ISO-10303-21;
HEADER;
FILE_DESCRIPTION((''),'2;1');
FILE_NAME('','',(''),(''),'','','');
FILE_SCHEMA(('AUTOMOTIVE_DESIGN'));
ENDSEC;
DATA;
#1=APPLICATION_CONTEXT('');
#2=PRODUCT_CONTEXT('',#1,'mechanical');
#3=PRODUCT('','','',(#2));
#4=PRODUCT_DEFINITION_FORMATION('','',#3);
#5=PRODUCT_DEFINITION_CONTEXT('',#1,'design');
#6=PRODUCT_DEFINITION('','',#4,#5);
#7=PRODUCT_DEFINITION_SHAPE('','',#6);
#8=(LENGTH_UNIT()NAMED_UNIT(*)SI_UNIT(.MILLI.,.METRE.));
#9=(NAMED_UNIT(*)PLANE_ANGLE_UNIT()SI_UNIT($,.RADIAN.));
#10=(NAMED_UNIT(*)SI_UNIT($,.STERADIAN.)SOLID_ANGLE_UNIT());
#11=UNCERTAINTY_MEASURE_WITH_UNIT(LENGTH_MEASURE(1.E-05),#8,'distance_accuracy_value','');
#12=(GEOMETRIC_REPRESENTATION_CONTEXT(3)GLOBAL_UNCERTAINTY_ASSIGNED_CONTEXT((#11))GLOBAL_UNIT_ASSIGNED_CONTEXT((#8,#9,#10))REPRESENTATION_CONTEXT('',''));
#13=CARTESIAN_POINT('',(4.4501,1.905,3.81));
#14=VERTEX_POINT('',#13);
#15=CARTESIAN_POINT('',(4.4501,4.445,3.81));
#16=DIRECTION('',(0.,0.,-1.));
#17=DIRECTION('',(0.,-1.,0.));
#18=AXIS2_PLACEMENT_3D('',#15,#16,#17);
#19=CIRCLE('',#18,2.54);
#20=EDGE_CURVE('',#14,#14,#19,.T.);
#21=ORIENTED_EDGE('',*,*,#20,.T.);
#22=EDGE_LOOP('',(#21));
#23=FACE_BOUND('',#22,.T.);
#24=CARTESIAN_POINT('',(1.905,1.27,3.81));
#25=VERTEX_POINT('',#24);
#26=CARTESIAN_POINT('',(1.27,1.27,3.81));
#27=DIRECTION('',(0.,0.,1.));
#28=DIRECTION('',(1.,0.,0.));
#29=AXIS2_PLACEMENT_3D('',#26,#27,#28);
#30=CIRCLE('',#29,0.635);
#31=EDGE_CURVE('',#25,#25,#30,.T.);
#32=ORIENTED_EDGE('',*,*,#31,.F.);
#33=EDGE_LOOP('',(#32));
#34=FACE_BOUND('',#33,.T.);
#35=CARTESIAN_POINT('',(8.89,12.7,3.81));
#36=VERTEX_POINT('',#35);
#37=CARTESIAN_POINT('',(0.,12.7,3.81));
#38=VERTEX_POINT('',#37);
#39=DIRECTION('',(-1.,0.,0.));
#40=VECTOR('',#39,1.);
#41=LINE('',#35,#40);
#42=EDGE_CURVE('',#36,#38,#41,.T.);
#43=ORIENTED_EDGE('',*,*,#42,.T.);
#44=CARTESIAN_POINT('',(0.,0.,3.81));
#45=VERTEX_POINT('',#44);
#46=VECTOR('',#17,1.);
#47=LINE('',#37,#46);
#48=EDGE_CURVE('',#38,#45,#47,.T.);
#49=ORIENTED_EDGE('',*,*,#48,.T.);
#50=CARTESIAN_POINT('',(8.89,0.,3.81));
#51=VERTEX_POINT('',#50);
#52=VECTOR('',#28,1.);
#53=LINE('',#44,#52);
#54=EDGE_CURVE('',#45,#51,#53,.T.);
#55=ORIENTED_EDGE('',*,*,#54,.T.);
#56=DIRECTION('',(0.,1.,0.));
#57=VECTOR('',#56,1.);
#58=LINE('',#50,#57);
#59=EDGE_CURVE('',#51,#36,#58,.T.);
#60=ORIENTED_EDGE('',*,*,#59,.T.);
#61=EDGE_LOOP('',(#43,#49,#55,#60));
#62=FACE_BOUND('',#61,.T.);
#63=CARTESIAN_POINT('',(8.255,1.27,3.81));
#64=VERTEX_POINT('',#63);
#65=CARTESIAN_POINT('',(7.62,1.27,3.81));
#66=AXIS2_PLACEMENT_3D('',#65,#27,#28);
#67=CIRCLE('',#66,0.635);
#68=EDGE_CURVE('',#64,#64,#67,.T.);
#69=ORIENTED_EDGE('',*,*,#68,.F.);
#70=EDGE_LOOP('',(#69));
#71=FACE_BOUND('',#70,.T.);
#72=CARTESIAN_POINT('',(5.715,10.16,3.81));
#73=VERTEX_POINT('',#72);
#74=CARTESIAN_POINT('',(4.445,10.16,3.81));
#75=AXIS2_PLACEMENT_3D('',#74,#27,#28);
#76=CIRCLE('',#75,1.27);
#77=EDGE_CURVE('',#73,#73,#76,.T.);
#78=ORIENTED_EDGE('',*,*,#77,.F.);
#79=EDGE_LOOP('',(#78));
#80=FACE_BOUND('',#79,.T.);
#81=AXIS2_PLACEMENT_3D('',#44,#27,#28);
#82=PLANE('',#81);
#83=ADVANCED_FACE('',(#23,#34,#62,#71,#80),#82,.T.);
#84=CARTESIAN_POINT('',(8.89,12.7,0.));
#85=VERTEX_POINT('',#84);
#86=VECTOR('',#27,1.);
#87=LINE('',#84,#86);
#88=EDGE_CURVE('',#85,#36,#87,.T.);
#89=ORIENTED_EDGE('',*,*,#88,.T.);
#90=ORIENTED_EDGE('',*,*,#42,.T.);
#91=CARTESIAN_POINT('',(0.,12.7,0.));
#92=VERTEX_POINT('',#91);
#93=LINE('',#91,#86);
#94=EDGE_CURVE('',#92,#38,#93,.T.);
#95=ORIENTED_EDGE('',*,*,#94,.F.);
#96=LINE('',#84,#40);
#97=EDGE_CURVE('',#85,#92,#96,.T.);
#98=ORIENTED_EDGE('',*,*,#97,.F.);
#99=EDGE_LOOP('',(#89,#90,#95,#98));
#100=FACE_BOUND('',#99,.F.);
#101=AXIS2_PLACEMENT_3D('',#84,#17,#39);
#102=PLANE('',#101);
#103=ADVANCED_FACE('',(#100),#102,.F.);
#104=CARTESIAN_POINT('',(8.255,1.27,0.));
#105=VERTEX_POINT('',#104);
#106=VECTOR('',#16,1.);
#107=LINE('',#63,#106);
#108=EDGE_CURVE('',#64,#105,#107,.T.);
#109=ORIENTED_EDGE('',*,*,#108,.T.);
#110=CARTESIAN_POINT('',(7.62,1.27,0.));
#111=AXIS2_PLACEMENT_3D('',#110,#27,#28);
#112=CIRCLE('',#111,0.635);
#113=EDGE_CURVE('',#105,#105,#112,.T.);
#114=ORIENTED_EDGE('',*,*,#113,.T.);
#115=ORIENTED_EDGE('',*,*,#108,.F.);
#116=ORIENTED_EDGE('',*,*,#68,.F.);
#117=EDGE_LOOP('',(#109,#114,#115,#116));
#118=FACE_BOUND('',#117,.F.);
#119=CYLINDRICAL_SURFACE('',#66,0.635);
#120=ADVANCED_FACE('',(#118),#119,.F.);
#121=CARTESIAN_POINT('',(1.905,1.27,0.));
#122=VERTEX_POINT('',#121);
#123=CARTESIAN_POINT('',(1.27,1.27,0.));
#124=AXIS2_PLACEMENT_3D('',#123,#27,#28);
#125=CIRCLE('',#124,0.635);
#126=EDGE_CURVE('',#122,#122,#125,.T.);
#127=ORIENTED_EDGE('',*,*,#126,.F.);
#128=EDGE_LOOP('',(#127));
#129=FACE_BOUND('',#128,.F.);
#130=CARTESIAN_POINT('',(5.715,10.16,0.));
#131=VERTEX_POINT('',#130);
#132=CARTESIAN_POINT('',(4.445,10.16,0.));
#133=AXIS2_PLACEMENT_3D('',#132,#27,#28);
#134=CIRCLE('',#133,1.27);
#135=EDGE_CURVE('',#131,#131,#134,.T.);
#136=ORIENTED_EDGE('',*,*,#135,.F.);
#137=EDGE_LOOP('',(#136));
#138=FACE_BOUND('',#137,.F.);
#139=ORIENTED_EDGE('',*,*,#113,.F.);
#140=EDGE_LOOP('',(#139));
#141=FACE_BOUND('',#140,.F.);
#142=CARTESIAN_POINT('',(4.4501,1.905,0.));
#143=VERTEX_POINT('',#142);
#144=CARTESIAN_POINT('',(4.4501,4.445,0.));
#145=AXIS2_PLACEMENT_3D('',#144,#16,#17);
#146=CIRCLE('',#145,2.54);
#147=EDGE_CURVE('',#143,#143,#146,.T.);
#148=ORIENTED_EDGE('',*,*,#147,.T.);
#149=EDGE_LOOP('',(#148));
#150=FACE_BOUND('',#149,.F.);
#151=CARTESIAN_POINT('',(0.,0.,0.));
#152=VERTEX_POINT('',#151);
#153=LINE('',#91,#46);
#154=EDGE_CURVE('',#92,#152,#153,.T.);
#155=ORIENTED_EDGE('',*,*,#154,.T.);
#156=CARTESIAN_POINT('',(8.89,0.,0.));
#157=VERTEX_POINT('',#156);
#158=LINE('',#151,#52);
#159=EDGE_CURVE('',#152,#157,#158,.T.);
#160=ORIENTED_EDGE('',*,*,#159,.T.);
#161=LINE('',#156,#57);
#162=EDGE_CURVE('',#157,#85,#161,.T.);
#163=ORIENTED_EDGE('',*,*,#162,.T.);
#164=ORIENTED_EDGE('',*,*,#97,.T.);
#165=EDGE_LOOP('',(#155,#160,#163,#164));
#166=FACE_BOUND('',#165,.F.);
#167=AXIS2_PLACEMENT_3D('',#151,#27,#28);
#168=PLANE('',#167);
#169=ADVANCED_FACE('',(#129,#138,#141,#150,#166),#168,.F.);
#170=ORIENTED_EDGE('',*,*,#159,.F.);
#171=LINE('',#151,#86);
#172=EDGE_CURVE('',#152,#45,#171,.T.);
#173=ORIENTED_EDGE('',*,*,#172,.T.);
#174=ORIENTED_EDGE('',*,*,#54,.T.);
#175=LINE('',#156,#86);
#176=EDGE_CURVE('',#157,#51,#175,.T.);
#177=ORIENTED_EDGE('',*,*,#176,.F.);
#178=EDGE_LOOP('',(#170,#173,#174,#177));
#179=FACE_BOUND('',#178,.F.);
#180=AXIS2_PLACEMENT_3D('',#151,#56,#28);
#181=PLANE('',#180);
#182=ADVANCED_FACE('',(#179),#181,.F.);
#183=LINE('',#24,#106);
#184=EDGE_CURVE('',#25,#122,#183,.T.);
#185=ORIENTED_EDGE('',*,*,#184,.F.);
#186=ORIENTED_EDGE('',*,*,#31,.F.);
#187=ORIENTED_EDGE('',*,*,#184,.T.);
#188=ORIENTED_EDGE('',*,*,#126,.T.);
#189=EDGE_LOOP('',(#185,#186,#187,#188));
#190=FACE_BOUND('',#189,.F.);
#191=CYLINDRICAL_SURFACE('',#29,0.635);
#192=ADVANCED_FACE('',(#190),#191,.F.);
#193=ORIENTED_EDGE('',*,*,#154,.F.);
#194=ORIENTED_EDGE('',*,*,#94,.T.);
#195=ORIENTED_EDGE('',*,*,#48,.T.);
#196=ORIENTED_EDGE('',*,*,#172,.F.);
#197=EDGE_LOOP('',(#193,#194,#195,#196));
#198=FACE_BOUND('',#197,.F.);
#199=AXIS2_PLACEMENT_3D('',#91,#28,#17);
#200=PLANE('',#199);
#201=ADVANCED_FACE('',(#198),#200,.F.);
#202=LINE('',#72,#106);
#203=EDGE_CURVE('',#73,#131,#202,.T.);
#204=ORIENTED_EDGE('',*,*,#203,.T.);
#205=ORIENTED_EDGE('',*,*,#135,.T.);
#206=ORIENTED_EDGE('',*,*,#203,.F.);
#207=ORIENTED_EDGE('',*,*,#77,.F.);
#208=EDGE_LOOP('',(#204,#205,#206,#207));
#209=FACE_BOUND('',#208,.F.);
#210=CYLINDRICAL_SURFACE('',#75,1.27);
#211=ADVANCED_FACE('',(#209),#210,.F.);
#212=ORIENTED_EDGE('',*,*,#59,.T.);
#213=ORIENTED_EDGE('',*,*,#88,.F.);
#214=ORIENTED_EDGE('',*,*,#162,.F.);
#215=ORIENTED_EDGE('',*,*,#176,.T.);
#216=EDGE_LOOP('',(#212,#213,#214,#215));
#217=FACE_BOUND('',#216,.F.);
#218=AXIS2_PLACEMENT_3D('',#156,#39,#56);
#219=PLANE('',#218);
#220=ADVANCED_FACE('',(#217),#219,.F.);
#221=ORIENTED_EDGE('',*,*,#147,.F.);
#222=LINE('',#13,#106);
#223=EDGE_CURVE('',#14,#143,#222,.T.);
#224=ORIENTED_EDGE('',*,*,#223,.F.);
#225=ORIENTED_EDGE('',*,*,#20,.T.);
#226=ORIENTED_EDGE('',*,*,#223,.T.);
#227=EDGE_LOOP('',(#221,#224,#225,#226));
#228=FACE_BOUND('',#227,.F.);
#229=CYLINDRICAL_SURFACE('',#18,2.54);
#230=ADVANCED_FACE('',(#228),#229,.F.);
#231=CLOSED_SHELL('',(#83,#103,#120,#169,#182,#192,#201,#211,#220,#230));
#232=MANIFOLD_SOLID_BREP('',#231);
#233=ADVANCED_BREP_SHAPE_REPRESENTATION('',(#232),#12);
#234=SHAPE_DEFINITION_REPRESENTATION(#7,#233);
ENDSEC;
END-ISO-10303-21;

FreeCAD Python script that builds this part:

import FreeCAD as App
import Part
import Sketcher
from FreeCAD import Vector
Q = App.Units.Quantity


def add_polygon(sketch, points):
    """Adds a closed chain of lines whose ends are joined by coincident constraints."""
    first, n = sketch.GeometryCount, len(points)
    for a, b in zip(points, points[1:] + points[:1]):
        sketch.addGeometry(Part.LineSegment(App.Vector(*a, 0), App.Vector(*b, 0)), False)
    for i in range(n):
        sketch.addConstraint(Sketcher.Constraint("Coincident", first + i, 2, first + (i + 1) % n, 1))

doc = App.newDocument("Part")
body = doc.addObject("PartDesign::Body", "Body")

sketch1 = doc.addObject("Sketcher::SketchObject", "Sketch")
body.addObject(sketch1)
sketch1.AttachmentSupport = (doc.XY_Plane, [""])
sketch1.MapMode = "FlatFace"
add_polygon(sketch1, [(0, 13), (0, 0), (9, 0), (9, 13)])
sketch1.addConstraint(Sketcher.Constraint("Vertical", 0))
sketch1.addConstraint(Sketcher.Constraint("Horizontal", 1))
sketch1.addConstraint(Sketcher.Constraint("Vertical", 2))
sketch1.addConstraint(Sketcher.Constraint("Horizontal", 3))
sketch1.addConstraint(Sketcher.Constraint("Coincident", 0, 2, -1, 1))
sketch1.addConstraint(Sketcher.Constraint("DistanceY", 0, 2, 0, 1, Q("0.5 in")))
sketch1.addConstraint(Sketcher.Constraint("DistanceX", 1, 1, 1, 2, Q("0.35 in")))
pad1 = doc.addObject("PartDesign::Pad", "Pad")
body.addObject(pad1)
pad1.Profile = sketch1
pad1.Length = Q("0.15 in")

sketch2 = doc.addObject("Sketcher::SketchObject", "Sketch001")
body.addObject(sketch2)
sketch2.AttachmentSupport = (doc.XY_Plane, [""])
sketch2.MapMode = "FlatFace"
sketch2.AttachmentOffset = App.Placement(Vector(0, 0, 0.15 * 25.4), App.Rotation())
sketch2.addGeometry(Part.Circle(Vector(4.5, 4.4, 0), Vector(0, 0, 1), 2.5), False)
sketch2.addConstraint(Sketcher.Constraint("Diameter", 0, Q("0.2 in")))
sketch2.addConstraint(Sketcher.Constraint("DistanceY", -1, 1, 0, 3, Q("0.175 in")))
sketch2.addConstraint(Sketcher.Constraint("DistanceX", -1, 1, 0, 3, Q("0.1752 in")))
doc.recompute()
hole = doc.addObject("PartDesign::Hole", "Hole")
body.addObject(hole)
hole.Profile = sketch2
hole.ThreadType = "None"
hole.Diameter = Q("0.2 in")
hole.DepthType = "Dimension"
hole.Depth = Q("0.75 in")
hole.DrillPoint = "Flat"

sketch3 = doc.addObject("Sketcher::SketchObject", "Sketch002")
body.addObject(sketch3)
sketch3.AttachmentSupport = (doc.XY_Plane, [""])
sketch3.MapMode = "FlatFace"
sketch3.AttachmentOffset = App.Placement(Vector(0, 0, 0.15 * 25.4), App.Rotation())
sketch3.addGeometry(Part.Circle(Vector(4.4, 10.2, 0), Vector(0, 0, 1), 1.3), False)
sketch3.addConstraint(Sketcher.Constraint("Diameter", 0, Q("0.1 in")))
sketch3.addConstraint(Sketcher.Constraint("DistanceX", -1, 1, 0, 3, Q("0.175 in")))
sketch3.addConstraint(Sketcher.Constraint("DistanceY", -1, 1, 0, 3, Q("0.4 in")))
pocket1 = doc.addObject("PartDesign::Pocket", "Pocket")
body.addObject(pocket1)
pocket1.Profile = sketch3
pocket1.Length = Q("1 in")

sketch4 = doc.addObject("Sketcher::SketchObject", "Sketch003")
body.addObject(sketch4)
sketch4.AttachmentSupport = (doc.XY_Plane, [""])
sketch4.MapMode = "FlatFace"
sketch4.AttachmentOffset = App.Placement(Vector(0, 0, 0.15 * 25.4), App.Rotation())
sketch4.addGeometry(Part.Circle(Vector(7.6, 1.3, 0), Vector(0, 0, 1), 0.6), False)
sketch4.addGeometry(Part.Circle(Vector(1.3, 1.3, 0), Vector(0, 0, 1), 0.6), False)
sketch4.addConstraint(Sketcher.Constraint("Equal", 0, 1))
sketch4.addConstraint(Sketcher.Constraint("Horizontal", 0, 3, 1, 3))
sketch4.addConstraint(Sketcher.Constraint("Diameter", 0, Q("0.05 in")))
sketch4.addConstraint(Sketcher.Constraint("DistanceY", -1, 1, 0, 3, Q("0.05 in")))
sketch4.addConstraint(Sketcher.Constraint("DistanceX", -1, 1, 1, 3, Q("0.05 in")))
sketch4.addConstraint(Sketcher.Constraint("DistanceX", -1, 1, 0, 3, Q("0.3 in")))
pocket2 = doc.addObject("PartDesign::Pocket", "Pocket001")
body.addObject(pocket2)
pocket2.Profile = sketch4
pocket2.Type = "ThroughAll"

doc.recompute()
